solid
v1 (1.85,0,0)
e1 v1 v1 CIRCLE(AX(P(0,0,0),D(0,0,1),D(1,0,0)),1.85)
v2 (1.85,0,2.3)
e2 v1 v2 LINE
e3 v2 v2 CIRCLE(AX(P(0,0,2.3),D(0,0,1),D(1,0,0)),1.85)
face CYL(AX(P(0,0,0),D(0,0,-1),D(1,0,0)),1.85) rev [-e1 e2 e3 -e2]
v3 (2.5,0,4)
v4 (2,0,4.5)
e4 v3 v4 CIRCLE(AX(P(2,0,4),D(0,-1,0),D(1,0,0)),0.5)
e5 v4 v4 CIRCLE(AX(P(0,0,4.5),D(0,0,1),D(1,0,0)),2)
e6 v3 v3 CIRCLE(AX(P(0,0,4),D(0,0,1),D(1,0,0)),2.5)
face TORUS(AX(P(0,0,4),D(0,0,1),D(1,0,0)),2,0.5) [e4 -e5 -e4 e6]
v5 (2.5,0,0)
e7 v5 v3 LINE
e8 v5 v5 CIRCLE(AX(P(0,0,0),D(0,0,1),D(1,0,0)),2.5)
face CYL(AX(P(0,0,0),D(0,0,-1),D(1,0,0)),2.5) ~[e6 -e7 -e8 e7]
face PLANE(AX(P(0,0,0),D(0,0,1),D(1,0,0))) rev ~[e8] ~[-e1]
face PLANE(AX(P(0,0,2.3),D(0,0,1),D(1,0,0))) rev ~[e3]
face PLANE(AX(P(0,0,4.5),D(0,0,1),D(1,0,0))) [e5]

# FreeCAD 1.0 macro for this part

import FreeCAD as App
import Part
import Sketcher

V = App.Vector


def edges_at(feature, points):
    """Names of the edges that pass closest to the given points."""
    edges = feature.Shape.Edges
    near = lambda p: min(range(len(edges)), key=lambda i: edges[i].distToShape(Part.Vertex(*p))[0])
    return sorted({f"Edge{near(p) + 1}" for p in points})

doc = App.newDocument("Part")
body = doc.addObject("PartDesign::Body", "Body")

# Sketch on XY plane
sketch1 = body.newObject("Sketcher::SketchObject", "Sketch")
sketch1.AttachmentSupport = (doc.getObject("XY_Plane"), [""])
sketch1.MapMode = "FlatFace"
sketch1.addGeometry(Part.Circle(V(0, 0, 0), V(0, 0, 1), 2.5), False)
sketch1.addConstraint([
    Sketcher.Constraint("Coincident", 0, 3, -1, 1),
    Sketcher.Constraint("Diameter", 0, 5.0),
])
pad1 = body.newObject("PartDesign::Pad", "Pad")
pad1.Profile = sketch1
pad1.Length = 4.5
doc.recompute()

fillet = body.newObject("PartDesign::Fillet", "Fillet")
fillet.Base = (pad1, edges_at(pad1, [(-2.5, 0, 4.5)]))
fillet.Radius = 0.5

# Sketch on XY plane
sketch2 = body.newObject("Sketcher::SketchObject", "Sketch001")
sketch2.AttachmentSupport = (doc.getObject("XY_Plane"), [""])
sketch2.MapMode = "FlatFace"
sketch2.addGeometry(Part.Circle(V(0, 0, 0), V(0, 0, 1), 1.9), False)
sketch2.addConstraint([
    Sketcher.Constraint("Coincident", 0, 3, -1, 1),
    Sketcher.Constraint("Diameter", 0, 3.7),
])
pocket1 = body.newObject("PartDesign::Pocket", "Pocket")
pocket1.Profile = sketch2
pocket1.Length = 2.3
pocket1.Reversed = True

doc.recompute()
